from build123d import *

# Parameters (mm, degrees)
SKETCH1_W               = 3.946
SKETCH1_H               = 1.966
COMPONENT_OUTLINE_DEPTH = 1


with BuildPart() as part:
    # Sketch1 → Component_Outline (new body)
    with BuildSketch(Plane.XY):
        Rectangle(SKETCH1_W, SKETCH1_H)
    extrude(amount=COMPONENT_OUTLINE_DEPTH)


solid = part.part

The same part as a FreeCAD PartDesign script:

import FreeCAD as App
import Part
import Sketcher
from FreeCAD import Vector


def add_polygon(sketch, points):
    """Adds a closed chain of lines whose ends are joined by coincident constraints."""
    first, n = sketch.GeometryCount, len(points)
    for a, b in zip(points, points[1:] + points[:1]):
        sketch.addGeometry(Part.LineSegment(App.Vector(*a, 0), App.Vector(*b, 0)), False)
    for i in range(n):
        sketch.addConstraint(Sketcher.Constraint("Coincident", first + i, 2, first + (i + 1) % n, 1))

doc = App.newDocument("Part")
params = doc.addObject("Spreadsheet::Sheet", "Params")
for row, (alias, value) in enumerate([
    ("pad1_length", "1 mm"),
], start=1):
    params.set(f"A{row}", alias)
    params.set(f"B{row}", "=" + value)
    params.setAlias(f"B{row}", alias)

body = doc.addObject("PartDesign::Body", "Body")

sketch1 = doc.addObject("Sketcher::SketchObject", "Sketch")
body.addObject(sketch1)
sketch1.AttachmentSupport = (doc.XY_Plane, [""])
sketch1.MapMode = "FlatFace"
add_polygon(sketch1, [(-2, 1), (-2, -1), (2, -1), (2, 1)])
sketch1.addConstraint(Sketcher.Constraint("Vertical", 0))
sketch1.addConstraint(Sketcher.Constraint("Horizontal", 1))
sketch1.addConstraint(Sketcher.Constraint("Vertical", 2))
sketch1.addConstraint(Sketcher.Constraint("Horizontal", 3))
sketch1.addConstraint(Sketcher.Constraint("Symmetric", 0, 2, 2, 2, -1, 1))
sketch1.addConstraint(Sketcher.Constraint("DistanceX", 1, 1, 1, 2, 3.946))
sketch1.addConstraint(Sketcher.Constraint("DistanceY", 0, 2, 0, 1, 1.966))
pad1 = doc.addObject("PartDesign::Pad", "Pad")
body.addObject(pad1)
pad1.Profile = sketch1
pad1.setExpression("Length", "Params.pad1_length")

doc.recompute()
